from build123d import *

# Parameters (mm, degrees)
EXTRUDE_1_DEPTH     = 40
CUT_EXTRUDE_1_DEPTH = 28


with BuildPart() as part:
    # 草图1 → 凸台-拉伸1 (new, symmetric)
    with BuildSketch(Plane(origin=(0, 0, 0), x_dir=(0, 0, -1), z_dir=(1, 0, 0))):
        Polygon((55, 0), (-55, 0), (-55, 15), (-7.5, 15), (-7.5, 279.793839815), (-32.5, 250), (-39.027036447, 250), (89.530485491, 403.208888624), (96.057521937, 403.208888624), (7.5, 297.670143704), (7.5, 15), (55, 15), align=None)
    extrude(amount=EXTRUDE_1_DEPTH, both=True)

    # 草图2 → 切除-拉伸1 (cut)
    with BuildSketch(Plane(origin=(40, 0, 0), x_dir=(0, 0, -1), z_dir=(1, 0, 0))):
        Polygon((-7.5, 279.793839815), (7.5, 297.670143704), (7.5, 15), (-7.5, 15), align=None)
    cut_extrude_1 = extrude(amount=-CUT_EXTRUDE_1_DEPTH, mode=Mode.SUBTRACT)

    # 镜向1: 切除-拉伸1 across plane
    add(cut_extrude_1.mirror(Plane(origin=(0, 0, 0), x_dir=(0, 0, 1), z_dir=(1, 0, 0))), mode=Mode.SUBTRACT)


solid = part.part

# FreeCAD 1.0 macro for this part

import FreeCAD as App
import Part
import Sketcher
from FreeCAD import Vector
Q = App.Units.Quantity


def add_polygon(sketch, points):
    """Adds a closed chain of lines whose ends are joined by coincident constraints."""
    first, n = sketch.GeometryCount, len(points)
    for a, b in zip(points, points[1:] + points[:1]):
        sketch.addGeometry(Part.LineSegment(App.Vector(*a, 0), App.Vector(*b, 0)), False)
    for i in range(n):
        sketch.addConstraint(Sketcher.Constraint("Coincident", first + i, 2, first + (i + 1) % n, 1))

doc = App.newDocument("Part")
body = doc.addObject("PartDesign::Body", "Body")

# Sketch on YZ plane
sketch1 = body.newObject("Sketcher::SketchObject", "Sketch")
sketch1.AttachmentSupport = (doc.getObject("YZ_Plane"), [""])
sketch1.MapMode = "FlatFace"
add_polygon(sketch1, [(0, 55), (0, -55), (15, -55), (15, -8), (298, -8), (403, -96), (403, -90), (250, 39), (250, 32), (280, 8), (15, 8), (15, 55)])  # lines 0-11
sketch1.addConstraint([
    Sketcher.Constraint("Vertical", 0),
    Sketcher.Constraint("Horizontal", 1),
    Sketcher.Constraint("Vertical", 2),
    Sketcher.Constraint("Horizontal", 3),
    Sketcher.Constraint("Vertical", 5),
    Sketcher.Constraint("Vertical", 7),
    Sketcher.Constraint("Horizontal", 9),
    Sketcher.Constraint("Vertical", 10),
    Sketcher.Constraint("Horizontal", 11),
    Sketcher.Constraint("Symmetric", 0, 2, 11, 2, -1, 1),
    Sketcher.Constraint("Symmetric", 2, 2, 9, 2, -1),
    Sketcher.Constraint("Parallel", 4, 6),
    Sketcher.Constraint("Parallel", 6, 8),
    Sketcher.Constraint("Equal", 5, 7),
    Sketcher.Constraint("DistanceX", 1, 1, 1, 2, Q("15 mm")),
    Sketcher.Constraint("DistanceY", 0, 2, 0, 1, Q("110 mm")),
    Sketcher.Constraint("Angle", 4, Q("-40 deg")),
    Sketcher.Constraint("Distance", 6, Q("200 mm")),
    Sketcher.Constraint("DistanceY", 2, 1, 2, 2, Q("47.5 mm")),
    Sketcher.Constraint("DistanceX", -1, 1, 6, 2, Q("250 mm")),
    Sketcher.Constraint("DistanceY", 3, 2, 7, 2, Q("40 mm")),
    Sketcher.Constraint("DistanceY", 5, 1, 5, 2, Q("6.527036 mm")),
])
pad1 = body.newObject("PartDesign::Pad", "Pad")
pad1.Profile = sketch1
pad1.Length = 80
pad1.Midplane = True

# Sketch on YZ plane
sketch2 = body.newObject("Sketcher::SketchObject", "Sketch001")
sketch2.AttachmentSupport = (doc.getObject("YZ_Plane"), [""])
sketch2.MapMode = "FlatFace"
sketch2.AttachmentOffset = App.Placement(Vector(0, 0, 40), App.Rotation())
add_polygon(sketch2, [(298, -8), (280, 8), (15, 8), (15, -8)])  # lines 0-3
sketch2.addConstraint([
    Sketcher.Constraint("Horizontal", 1),
    Sketcher.Constraint("Vertical", 2),
    Sketcher.Constraint("Horizontal", 3),
    Sketcher.Constraint("DistanceY", 2, 2, 2, 1, Q("15 mm")),
    Sketcher.Constraint("Angle", 0, Q("140 deg")),
    Sketcher.Constraint("DistanceX", -1, 1, 1, 2, Q("15 mm")),
    Sketcher.Constraint("DistanceY", -1, 1, 0, 2, Q("7.5 mm")),
    Sketcher.Constraint("DistanceX", 1, 2, 1, 1, Q("264.79384 mm")),
])
pocket1 = body.newObject("PartDesign::Pocket", "Pocket")
pocket1.Profile = sketch2
pocket1.Length = 28
doc.recompute()

mirrored = body.newObject("PartDesign::Mirrored", "Mirrored")
mirrored.Originals = [pocket1]
mirrored.MirrorPlane = (doc.getObject("YZ_Plane"), [""])
body.Tip = mirrored

doc.recompute()
